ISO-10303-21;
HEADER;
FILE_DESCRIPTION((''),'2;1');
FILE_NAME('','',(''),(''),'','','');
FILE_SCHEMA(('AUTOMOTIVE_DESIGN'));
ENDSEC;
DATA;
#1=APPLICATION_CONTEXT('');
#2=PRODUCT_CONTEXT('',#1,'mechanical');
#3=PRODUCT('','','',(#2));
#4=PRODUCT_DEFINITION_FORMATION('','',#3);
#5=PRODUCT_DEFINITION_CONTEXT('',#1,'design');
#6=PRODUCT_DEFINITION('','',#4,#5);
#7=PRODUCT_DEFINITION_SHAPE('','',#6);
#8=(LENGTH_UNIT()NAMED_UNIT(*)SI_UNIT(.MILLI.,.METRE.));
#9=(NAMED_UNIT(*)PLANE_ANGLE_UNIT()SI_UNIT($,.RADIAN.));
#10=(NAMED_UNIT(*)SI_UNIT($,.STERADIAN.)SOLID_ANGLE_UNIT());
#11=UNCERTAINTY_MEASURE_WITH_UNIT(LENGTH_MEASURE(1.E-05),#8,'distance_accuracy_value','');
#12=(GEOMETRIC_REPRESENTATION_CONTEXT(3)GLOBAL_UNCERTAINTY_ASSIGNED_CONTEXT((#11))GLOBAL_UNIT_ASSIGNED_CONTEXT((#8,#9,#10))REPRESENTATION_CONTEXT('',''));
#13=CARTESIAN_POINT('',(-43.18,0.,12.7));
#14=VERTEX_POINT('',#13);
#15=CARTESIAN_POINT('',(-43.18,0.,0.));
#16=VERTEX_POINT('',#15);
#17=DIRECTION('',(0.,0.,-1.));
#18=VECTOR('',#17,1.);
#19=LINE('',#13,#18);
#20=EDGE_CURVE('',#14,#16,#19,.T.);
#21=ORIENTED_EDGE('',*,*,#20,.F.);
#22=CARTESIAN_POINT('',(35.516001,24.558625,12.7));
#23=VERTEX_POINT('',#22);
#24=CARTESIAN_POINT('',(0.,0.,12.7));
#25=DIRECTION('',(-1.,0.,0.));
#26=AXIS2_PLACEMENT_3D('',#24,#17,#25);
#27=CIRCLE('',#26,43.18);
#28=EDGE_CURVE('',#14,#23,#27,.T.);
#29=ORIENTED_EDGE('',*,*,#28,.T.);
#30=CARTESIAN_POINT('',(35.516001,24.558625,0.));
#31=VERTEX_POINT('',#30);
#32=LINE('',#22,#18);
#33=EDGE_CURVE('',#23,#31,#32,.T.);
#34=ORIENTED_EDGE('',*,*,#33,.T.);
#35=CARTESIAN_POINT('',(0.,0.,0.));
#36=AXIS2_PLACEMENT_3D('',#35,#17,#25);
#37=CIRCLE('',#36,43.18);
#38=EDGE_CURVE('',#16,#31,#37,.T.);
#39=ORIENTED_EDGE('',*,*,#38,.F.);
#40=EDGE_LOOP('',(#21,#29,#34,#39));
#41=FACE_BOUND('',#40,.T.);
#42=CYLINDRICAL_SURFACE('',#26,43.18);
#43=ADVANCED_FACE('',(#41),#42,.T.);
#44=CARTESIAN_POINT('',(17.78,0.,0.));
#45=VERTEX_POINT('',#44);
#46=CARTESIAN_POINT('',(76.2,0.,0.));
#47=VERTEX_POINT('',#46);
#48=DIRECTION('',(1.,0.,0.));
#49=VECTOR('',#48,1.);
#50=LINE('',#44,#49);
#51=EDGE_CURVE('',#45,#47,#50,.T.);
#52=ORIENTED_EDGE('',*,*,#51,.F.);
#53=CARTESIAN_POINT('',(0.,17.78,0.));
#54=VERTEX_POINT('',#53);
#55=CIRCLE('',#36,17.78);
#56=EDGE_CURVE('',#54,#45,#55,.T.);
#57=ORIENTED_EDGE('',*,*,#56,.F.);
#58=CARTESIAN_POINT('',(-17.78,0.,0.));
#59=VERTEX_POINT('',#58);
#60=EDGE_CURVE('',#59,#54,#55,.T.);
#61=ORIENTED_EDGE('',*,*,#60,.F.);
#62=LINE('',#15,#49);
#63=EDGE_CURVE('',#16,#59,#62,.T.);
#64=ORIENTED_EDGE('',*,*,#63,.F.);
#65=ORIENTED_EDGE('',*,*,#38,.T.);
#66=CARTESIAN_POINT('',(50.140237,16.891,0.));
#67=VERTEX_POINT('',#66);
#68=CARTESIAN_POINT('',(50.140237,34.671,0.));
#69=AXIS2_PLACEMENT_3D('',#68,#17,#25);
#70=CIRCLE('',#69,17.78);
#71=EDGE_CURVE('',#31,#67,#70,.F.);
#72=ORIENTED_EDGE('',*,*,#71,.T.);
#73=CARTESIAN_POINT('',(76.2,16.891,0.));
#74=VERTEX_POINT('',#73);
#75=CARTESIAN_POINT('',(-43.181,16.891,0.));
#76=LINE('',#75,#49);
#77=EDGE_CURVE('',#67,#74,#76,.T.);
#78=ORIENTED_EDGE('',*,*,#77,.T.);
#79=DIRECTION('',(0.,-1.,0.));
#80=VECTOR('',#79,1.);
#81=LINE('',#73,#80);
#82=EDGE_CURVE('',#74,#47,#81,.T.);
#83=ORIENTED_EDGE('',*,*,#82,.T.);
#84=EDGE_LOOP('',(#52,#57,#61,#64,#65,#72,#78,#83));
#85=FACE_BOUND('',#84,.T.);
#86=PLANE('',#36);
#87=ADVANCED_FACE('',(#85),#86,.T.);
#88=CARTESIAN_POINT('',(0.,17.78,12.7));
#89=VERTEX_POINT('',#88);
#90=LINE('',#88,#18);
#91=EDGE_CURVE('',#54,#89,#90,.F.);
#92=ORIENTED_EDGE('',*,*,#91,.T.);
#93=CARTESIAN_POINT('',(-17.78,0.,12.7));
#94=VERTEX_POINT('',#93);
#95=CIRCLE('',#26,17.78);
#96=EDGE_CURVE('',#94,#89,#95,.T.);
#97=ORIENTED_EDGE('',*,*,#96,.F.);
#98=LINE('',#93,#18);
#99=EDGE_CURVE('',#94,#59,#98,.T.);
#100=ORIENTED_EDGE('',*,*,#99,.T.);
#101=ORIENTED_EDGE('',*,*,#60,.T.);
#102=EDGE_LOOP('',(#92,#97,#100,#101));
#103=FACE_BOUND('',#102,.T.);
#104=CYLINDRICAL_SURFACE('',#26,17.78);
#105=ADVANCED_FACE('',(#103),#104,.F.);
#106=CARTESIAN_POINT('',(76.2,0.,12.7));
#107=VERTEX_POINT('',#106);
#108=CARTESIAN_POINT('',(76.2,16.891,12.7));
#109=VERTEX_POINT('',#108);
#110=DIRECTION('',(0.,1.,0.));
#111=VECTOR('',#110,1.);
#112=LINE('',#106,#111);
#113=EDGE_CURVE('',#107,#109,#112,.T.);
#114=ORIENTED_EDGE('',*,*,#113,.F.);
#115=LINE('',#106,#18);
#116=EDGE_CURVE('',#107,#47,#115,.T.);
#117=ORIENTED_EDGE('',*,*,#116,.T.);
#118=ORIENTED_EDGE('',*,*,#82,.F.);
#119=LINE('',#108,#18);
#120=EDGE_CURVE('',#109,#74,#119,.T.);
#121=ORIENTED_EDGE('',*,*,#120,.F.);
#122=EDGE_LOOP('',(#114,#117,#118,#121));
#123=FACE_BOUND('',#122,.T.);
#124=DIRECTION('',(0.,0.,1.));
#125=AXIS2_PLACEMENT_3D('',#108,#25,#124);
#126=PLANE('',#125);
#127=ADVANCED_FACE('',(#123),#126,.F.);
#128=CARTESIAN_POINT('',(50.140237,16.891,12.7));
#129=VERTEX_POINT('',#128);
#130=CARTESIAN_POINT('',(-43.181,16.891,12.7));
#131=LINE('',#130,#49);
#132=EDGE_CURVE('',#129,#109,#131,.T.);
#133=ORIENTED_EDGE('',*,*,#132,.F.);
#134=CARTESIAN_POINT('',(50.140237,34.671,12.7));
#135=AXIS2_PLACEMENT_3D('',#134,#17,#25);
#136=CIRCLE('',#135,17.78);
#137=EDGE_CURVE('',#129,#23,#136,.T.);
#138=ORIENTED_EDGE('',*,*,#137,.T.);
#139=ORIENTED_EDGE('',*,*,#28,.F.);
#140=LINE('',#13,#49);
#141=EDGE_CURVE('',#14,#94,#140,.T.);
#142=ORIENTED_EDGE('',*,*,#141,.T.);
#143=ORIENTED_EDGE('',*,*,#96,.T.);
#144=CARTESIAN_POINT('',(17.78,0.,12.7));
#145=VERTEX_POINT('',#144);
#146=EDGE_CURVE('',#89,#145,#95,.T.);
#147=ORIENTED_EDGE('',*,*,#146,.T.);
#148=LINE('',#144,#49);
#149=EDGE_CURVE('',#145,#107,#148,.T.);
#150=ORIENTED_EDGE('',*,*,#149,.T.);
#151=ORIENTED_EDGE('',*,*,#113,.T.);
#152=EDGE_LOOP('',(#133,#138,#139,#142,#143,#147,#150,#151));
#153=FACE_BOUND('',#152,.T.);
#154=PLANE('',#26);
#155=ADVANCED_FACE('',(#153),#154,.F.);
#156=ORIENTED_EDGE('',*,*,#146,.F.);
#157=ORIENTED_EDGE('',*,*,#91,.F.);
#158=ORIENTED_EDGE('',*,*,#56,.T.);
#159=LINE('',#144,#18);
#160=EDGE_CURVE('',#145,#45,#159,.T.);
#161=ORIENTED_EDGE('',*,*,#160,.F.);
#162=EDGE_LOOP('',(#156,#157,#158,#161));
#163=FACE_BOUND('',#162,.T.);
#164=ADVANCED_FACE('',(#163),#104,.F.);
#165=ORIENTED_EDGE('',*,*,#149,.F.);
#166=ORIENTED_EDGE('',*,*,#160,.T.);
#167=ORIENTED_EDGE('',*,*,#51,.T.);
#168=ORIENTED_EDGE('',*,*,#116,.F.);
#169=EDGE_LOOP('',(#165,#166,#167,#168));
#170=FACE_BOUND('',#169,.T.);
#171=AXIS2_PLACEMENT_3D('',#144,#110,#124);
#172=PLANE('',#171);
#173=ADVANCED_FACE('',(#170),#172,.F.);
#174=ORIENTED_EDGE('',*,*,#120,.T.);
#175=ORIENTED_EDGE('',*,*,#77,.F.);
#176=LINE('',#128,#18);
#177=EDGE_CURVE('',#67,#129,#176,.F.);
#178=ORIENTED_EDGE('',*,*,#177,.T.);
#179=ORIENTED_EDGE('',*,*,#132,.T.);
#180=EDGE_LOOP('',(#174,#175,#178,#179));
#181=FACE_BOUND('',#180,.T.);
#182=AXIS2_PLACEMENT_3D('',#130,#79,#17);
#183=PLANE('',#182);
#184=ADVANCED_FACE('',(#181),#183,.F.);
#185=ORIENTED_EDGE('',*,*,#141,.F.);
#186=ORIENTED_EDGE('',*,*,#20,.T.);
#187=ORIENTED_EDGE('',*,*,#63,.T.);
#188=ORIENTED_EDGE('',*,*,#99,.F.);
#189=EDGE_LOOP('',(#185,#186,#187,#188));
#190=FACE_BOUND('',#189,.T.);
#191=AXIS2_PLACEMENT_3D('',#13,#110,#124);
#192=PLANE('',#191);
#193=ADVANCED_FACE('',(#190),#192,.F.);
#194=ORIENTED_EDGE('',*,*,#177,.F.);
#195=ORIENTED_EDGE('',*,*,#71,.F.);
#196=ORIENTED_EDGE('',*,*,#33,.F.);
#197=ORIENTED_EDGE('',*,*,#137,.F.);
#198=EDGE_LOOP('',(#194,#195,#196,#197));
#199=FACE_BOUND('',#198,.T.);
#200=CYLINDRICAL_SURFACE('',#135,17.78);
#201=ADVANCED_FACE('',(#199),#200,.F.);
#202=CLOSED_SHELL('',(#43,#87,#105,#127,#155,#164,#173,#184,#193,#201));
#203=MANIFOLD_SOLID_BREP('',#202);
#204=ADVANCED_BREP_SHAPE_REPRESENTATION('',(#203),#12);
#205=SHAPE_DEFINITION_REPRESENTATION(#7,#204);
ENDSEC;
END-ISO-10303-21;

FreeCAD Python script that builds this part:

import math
import FreeCAD as App
import Part
import Sketcher
from FreeCAD import Vector
Q = App.Units.Quantity


def edges_at(feature, points):
    """Names of the edges that pass closest to the given points."""
    edges = feature.Shape.Edges
    near = lambda p: min(range(len(edges)), key=lambda i: edges[i].distToShape(Part.Vertex(*p))[0])
    return sorted({f"Edge{near(p) + 1}" for p in points})


def add_polygon(sketch, points):
    """Adds a closed chain of lines whose ends are joined by coincident constraints."""
    first, n = sketch.GeometryCount, len(points)
    for a, b in zip(points, points[1:] + points[:1]):
        sketch.addGeometry(Part.LineSegment(App.Vector(*a, 0), App.Vector(*b, 0)), False)
    for i in range(n):
        sketch.addConstraint(Sketcher.Constraint("Coincident", first + i, 2, first + (i + 1) % n, 1))

doc = App.newDocument("Part")
body = doc.addObject("PartDesign::Body", "Body")

# Sketch on XY plane
sketch1 = body.newObject("Sketcher::SketchObject", "Sketch")
sketch1.AttachmentSupport = (doc.getObject("XY_Plane"), [""])
sketch1.MapMode = "FlatFace"
sketch1.addGeometry(Part.LineSegment(Vector(-43.18, 0, 0), Vector(-17.78, 0, 0)), False)
sketch1.addGeometry(Part.ArcOfCircle(Part.Circle(Vector(0, 0, 0), Vector(0, 0, 1), 17.78), math.radians(0), math.radians(180)), False)
sketch1.addGeometry(Part.LineSegment(Vector(17.78, 0, 0), Vector(43.18, 0, 0)), False)
sketch1.addGeometry(Part.ArcOfCircle(Part.Circle(Vector(0, 0, 0), Vector(0, 0, 1), 43.18), math.radians(0), math.radians(180)), False)
sketch1.addConstraint(Sketcher.Constraint("Coincident", 0, 2, 1, 2))
sketch1.addConstraint(Sketcher.Constraint("Coincident", 1, 1, 2, 1))
sketch1.addConstraint(Sketcher.Constraint("Coincident", 2, 2, 3, 1))
sketch1.addConstraint(Sketcher.Constraint("Coincident", 3, 2, 0, 1))
sketch1.addConstraint(Sketcher.Constraint("Horizontal", 0))
sketch1.addConstraint(Sketcher.Constraint("Horizontal", 2))
sketch1.addConstraint(Sketcher.Constraint("Coincident", 1, 3, -1, 1))
sketch1.addConstraint(Sketcher.Constraint("Coincident", 3, 3, -1, 1))
sketch1.addConstraint(Sketcher.Constraint("PointOnObject", 0, 2, -1))
sketch1.addConstraint(Sketcher.Constraint("PointOnObject", 1, 1, -1))
sketch1.addConstraint(Sketcher.Constraint("Radius", 1, Q("0.7 in")))
sketch1.addConstraint(Sketcher.Constraint("Radius", 3, Q("1.7 in")))
pad1 = body.newObject("PartDesign::Pad", "Pad")
pad1.Profile = sketch1
pad1.Length = Q("0.5 in")

# Sketch on YZ plane
sketch2 = body.newObject("Sketcher::SketchObject", "Sketch001")
sketch2.AttachmentSupport = (doc.getObject("YZ_Plane"), [""])
sketch2.MapMode = "FlatFace"
sketch2.AttachmentOffset = App.Placement(Vector(0, 0, 39.739231), App.Rotation())
add_polygon(sketch2, [(16.891, 12.7), (0, 12.7), (0, 0), (16.891, 0)])  # lines 0-3
sketch2.addConstraint(Sketcher.Constraint("Horizontal", 0))
sketch2.addConstraint(Sketcher.Constraint("Vertical", 1))
sketch2.addConstraint(Sketcher.Constraint("Horizontal", 2))
sketch2.addConstraint(Sketcher.Constraint("Vertical", 3))
sketch2.addConstraint(Sketcher.Constraint("Coincident", 1, 2, -1, 1))
sketch2.addConstraint(Sketcher.Constraint("DistanceY", 1, 2, 1, 1, Q("0.5 in")))
sketch2.addConstraint(Sketcher.Constraint("DistanceX", 0, 2, 0, 1, Q("0.665 in")))
pad2 = body.newObject("PartDesign::Pad", "Pad001")
pad2.Profile = sketch2
pad2.Length = 11.060769

# Sketch on YZ plane
sketch3 = body.newObject("Sketcher::SketchObject", "Sketch002")
sketch3.AttachmentSupport = (doc.getObject("YZ_Plane"), [""])
sketch3.MapMode = "FlatFace"
sketch3.AttachmentOffset = App.Placement(Vector(0, 0, 2 * 25.4), App.Rotation())
add_polygon(sketch3, [(16.891, 12.7), (0, 12.7), (0, 0), (16.891, 0)])  # lines 0-3
sketch3.addConstraint(Sketcher.Constraint("Horizontal", 0))
sketch3.addConstraint(Sketcher.Constraint("Vertical", 1))
sketch3.addConstraint(Sketcher.Constraint("Horizontal", 2))
sketch3.addConstraint(Sketcher.Constraint("Vertical", 3))
sketch3.addConstraint(Sketcher.Constraint("Coincident", 1, 2, -1, 1))
sketch3.addConstraint(Sketcher.Constraint("DistanceY", 1, 2, 1, 1, Q("0.5 in")))
sketch3.addConstraint(Sketcher.Constraint("DistanceX", 0, 2, 0, 1, Q("0.665 in")))
pad3 = body.newObject("PartDesign::Pad", "Pad002")
pad3.Profile = sketch3
pad3.Length = Q("1 in")
doc.recompute()

fillet = body.newObject("PartDesign::Fillet", "Fillet")
fillet.Base = (pad3, edges_at(pad3, [(39.739, 16.891, 6.35)]))
fillet.Radius = Q("0.7 in")

doc.recompute()
